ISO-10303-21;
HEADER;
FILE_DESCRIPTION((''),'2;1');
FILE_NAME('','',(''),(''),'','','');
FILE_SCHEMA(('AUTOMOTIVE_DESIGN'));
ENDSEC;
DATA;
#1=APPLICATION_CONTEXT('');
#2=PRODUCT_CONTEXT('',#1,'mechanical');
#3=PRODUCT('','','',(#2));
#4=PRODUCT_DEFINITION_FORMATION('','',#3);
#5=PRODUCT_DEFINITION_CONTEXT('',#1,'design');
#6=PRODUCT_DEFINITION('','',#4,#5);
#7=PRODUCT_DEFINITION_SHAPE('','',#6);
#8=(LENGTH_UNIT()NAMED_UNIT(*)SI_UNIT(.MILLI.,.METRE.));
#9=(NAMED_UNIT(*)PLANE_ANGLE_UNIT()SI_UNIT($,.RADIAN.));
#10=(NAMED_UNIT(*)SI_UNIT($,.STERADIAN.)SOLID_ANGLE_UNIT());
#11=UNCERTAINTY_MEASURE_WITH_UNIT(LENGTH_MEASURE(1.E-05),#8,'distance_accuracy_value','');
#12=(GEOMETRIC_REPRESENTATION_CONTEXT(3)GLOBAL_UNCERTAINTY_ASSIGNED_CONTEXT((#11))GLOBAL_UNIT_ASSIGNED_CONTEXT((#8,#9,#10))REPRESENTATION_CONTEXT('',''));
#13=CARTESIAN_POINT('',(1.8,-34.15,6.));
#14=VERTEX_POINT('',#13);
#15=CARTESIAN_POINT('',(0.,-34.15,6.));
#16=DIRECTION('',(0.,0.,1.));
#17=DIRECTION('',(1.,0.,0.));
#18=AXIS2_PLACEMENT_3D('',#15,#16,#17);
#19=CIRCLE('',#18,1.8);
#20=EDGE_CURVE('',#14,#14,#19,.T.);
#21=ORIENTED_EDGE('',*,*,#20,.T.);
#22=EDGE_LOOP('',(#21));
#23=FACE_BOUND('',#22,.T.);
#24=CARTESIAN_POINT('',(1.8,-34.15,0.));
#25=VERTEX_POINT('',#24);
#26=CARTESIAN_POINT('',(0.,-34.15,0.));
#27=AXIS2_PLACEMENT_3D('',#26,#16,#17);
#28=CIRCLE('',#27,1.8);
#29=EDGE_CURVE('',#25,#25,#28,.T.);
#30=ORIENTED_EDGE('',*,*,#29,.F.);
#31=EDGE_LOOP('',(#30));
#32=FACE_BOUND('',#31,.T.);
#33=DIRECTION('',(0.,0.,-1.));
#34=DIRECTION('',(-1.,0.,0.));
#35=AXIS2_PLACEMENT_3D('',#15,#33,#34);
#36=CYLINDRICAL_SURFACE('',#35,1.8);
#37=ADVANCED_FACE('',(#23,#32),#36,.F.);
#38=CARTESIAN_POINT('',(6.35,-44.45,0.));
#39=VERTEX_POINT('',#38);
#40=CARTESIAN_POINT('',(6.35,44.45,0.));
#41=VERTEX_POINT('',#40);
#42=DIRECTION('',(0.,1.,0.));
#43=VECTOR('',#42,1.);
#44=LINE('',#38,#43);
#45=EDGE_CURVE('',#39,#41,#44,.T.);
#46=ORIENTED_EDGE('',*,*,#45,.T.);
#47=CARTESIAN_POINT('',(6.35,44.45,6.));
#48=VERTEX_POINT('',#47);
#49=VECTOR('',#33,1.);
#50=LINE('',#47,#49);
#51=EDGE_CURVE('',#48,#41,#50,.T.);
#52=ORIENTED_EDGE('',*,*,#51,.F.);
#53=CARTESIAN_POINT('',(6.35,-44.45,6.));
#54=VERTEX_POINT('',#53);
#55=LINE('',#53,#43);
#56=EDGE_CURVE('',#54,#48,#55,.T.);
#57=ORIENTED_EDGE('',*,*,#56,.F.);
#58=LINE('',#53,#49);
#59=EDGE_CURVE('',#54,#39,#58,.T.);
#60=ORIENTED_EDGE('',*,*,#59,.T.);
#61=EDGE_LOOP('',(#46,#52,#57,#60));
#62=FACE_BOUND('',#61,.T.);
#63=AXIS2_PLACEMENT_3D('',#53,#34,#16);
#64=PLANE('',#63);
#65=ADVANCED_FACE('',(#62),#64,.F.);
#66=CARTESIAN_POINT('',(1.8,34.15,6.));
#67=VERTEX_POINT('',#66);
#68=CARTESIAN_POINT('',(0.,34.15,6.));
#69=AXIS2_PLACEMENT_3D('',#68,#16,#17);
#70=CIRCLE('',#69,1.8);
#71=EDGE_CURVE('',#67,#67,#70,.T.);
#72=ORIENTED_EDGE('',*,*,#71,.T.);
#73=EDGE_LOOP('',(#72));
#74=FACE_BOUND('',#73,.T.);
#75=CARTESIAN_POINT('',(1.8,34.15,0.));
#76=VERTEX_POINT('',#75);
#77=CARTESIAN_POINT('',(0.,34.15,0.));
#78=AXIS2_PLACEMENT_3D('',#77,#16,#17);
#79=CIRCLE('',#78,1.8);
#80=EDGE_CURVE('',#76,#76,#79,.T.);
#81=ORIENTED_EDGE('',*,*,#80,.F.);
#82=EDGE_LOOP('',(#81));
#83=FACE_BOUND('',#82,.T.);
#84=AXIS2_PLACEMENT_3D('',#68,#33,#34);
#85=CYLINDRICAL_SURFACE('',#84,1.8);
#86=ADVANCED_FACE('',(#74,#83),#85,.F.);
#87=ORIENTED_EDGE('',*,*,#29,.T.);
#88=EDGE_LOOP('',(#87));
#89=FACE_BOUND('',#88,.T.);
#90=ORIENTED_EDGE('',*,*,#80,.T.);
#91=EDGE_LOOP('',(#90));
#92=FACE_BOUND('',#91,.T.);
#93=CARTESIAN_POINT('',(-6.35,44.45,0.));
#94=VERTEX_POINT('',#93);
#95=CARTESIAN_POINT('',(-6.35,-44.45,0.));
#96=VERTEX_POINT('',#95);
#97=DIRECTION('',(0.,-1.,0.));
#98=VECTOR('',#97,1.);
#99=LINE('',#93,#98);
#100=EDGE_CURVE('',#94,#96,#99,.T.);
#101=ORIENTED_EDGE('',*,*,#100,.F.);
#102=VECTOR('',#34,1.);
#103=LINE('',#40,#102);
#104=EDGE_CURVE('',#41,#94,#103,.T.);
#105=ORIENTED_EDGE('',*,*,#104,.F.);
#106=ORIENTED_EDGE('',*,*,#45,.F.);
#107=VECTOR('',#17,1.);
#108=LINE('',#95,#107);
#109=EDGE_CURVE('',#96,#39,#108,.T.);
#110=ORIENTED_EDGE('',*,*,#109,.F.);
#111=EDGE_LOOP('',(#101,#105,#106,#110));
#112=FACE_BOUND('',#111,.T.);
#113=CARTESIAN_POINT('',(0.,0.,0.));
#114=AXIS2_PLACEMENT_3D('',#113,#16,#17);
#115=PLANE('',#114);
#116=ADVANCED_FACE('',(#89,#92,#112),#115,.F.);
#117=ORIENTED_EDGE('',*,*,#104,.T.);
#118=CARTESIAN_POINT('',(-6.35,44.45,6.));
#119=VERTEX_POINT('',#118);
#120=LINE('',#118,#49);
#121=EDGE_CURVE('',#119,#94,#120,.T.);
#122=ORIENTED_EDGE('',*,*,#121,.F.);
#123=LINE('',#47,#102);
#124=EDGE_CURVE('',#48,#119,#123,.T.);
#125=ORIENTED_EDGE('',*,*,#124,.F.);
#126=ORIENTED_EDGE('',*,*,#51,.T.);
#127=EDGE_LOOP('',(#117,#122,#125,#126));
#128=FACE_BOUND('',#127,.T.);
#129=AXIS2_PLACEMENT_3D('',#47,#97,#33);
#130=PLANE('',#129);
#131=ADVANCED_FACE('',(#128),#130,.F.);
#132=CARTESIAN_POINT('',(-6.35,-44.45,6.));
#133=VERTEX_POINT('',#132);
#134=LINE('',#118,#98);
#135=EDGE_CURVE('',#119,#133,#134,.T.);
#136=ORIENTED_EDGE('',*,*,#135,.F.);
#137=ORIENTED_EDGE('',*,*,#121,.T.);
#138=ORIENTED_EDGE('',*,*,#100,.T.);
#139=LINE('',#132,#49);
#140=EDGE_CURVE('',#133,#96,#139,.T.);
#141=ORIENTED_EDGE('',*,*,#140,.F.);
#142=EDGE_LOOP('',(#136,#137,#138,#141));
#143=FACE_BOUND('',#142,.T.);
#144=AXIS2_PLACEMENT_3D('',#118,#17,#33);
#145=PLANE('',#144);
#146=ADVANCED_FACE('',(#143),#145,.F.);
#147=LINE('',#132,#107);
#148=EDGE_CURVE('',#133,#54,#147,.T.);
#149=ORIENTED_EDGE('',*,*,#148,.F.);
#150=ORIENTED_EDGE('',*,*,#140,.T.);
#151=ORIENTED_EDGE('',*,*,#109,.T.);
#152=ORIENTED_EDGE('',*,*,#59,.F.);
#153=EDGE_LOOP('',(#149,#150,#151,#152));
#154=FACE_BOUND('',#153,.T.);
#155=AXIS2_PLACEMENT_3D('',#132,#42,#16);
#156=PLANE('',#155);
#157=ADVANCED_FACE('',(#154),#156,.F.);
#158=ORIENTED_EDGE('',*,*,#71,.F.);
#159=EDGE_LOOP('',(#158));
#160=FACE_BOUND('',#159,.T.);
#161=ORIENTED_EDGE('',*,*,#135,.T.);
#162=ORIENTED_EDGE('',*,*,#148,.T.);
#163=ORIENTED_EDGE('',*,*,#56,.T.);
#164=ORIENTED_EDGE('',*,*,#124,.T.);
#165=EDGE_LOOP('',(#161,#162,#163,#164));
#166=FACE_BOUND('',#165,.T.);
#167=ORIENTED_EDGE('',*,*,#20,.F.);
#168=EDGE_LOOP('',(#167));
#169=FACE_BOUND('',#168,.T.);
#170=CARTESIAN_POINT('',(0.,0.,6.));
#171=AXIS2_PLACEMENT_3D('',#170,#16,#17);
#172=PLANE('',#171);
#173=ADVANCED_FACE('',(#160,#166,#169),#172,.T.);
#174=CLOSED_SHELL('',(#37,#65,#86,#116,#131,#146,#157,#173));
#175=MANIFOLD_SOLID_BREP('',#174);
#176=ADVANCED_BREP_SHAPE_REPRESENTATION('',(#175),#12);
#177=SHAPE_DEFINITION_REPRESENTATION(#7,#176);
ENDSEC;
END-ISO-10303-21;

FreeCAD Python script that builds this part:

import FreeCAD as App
import Part
import Sketcher

V = App.Vector

doc = App.newDocument("Part")
params = doc.addObject("Spreadsheet::Sheet", "Params")
for row, (alias, value) in enumerate([
    ("sketch1_diameter", "3.6 mm"),
    ("sketch1_width", "12.7 mm"),
    ("sketch1_height", "88.9 mm"),
    ("pad1_length", "6 mm"),
], start=1):
    params.set(f"A{row}", alias)
    params.set(f"B{row}", "=" + value)
    params.setAlias(f"B{row}", alias)

body = doc.addObject("PartDesign::Body", "Body")

# Sketch on XY plane
sketch1 = doc.addObject("Sketcher::SketchObject", "Sketch")
body.addObject(sketch1)
sketch1.AttachmentSupport = (doc.XY_Plane, [""])
sketch1.MapMode = "FlatFace"
sketch1.addGeometry(Part.LineSegment(V(-6.35, 44.45, 0), V(-6.35, -44.45, 0)), False)
sketch1.addGeometry(Part.LineSegment(V(-6.35, -44.45, 0), V(6.35, -44.45, 0)), False)
sketch1.addGeometry(Part.LineSegment(V(6.35, -44.45, 0), V(6.35, 44.45, 0)), False)
sketch1.addGeometry(Part.LineSegment(V(6.35, 44.45, 0), V(-6.35, 44.45, 0)), False)
sketch1.addGeometry(Part.Circle(V(0, -34.15, 0), V(0, 0, 1), 1.8), False)
sketch1.addGeometry(Part.Circle(V(0, 34.15, 0), V(0, 0, 1), 1.8), False)
sketch1.addConstraint(Sketcher.Constraint("Coincident", 0, 2, 1, 1))
sketch1.addConstraint(Sketcher.Constraint("Coincident", 1, 2, 2, 1))
sketch1.addConstraint(Sketcher.Constraint("Coincident", 2, 2, 3, 1))
sketch1.addConstraint(Sketcher.Constraint("Coincident", 3, 2, 0, 1))
sketch1.addConstraint(Sketcher.Constraint("Vertical", 0))
sketch1.addConstraint(Sketcher.Constraint("Horizontal", 1))
sketch1.addConstraint(Sketcher.Constraint("Vertical", 2))
sketch1.addConstraint(Sketcher.Constraint("Horizontal", 3))
sketch1.addConstraint(Sketcher.Constraint("Equal", 4, 5))
sketch1.addConstraint(Sketcher.Constraint("Symmetric", 4, 3, 5, 3, -1, 1))
sketch1.addConstraint(Sketcher.Constraint("Symmetric", 0, 2, 2, 2, -1, 1))
sketch1.addConstraint(Sketcher.Constraint("PointOnObject", 4, 3, -2))
sketch1.addConstraint(Sketcher.Constraint("Diameter", 4, 3.6))
sketch1.addConstraint(Sketcher.Constraint("DistanceX", 1, 1, 1, 2, 12.7))
sketch1.addConstraint(Sketcher.Constraint("DistanceY", 0, 2, 0, 1, 88.9))
sketch1.addConstraint(Sketcher.Constraint("DistanceY", 4, 3, 5, 3, 68.3))
sketch1.setExpression("Constraints[12]", "Params.sketch1_diameter")
sketch1.setExpression("Constraints[13]", "Params.sketch1_width")
sketch1.setExpression("Constraints[14]", "Params.sketch1_height")
pad1 = doc.addObject("PartDesign::Pad", "Pad")
body.addObject(pad1)
pad1.Profile = sketch1
pad1.setExpression("Length", "Params.pad1_length")

doc.recompute()
